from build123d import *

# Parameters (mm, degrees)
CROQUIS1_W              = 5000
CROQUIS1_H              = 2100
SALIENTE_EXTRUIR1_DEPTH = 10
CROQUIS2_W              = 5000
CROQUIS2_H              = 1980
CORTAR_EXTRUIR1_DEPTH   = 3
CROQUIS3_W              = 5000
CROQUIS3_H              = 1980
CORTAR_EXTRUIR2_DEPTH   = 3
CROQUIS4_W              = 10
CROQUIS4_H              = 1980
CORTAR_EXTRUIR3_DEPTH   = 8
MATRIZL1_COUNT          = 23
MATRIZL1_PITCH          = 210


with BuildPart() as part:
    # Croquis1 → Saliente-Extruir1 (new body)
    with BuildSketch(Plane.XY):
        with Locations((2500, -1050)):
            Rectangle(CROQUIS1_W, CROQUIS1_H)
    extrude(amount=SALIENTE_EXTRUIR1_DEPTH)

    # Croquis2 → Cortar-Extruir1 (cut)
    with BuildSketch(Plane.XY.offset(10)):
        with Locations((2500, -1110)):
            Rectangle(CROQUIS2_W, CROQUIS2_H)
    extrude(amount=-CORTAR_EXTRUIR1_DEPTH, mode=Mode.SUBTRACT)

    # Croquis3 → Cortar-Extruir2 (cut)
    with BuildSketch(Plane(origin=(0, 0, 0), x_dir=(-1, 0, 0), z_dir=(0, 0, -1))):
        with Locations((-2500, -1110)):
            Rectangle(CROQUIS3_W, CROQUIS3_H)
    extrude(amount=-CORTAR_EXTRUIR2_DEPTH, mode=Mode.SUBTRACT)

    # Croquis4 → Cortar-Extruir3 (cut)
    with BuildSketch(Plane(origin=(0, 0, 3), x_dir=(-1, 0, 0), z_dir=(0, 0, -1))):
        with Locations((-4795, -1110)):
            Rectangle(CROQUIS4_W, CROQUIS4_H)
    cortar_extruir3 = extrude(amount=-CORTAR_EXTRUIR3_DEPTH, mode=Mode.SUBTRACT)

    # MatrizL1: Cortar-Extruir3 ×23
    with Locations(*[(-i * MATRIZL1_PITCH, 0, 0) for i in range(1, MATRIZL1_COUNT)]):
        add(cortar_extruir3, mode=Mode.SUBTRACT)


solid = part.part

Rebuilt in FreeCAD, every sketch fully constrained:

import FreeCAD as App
import Part
import Sketcher
Q = App.Units.Quantity


def add_polygon(sketch, points):
    """Adds a closed chain of lines whose ends are joined by coincident constraints."""
    first, n = sketch.GeometryCount, len(points)
    for a, b in zip(points, points[1:] + points[:1]):
        sketch.addGeometry(Part.LineSegment(App.Vector(*a, 0), App.Vector(*b, 0)), False)
    for i in range(n):
        sketch.addConstraint(Sketcher.Constraint("Coincident", first + i, 2, first + (i + 1) % n, 1))

doc = App.newDocument("Part")
body = doc.addObject("PartDesign::Body", "Body")

sketch1 = doc.addObject("Sketcher::SketchObject", "Sketch")
body.addObject(sketch1)
sketch1.AttachmentSupport = (doc.XY_Plane, [""])
sketch1.MapMode = "FlatFace"
add_polygon(sketch1, [(0, 0), (0, -2100), (5000, -2100), (5000, 0)])
sketch1.addConstraint(Sketcher.Constraint("Vertical", 0))
sketch1.addConstraint(Sketcher.Constraint("Horizontal", 1))
sketch1.addConstraint(Sketcher.Constraint("Vertical", 2))
sketch1.addConstraint(Sketcher.Constraint("Horizontal", 3))
sketch1.addConstraint(Sketcher.Constraint("Coincident", 3, 2, -1, 1))
sketch1.addConstraint(Sketcher.Constraint("DistanceX", 1, 1, 1, 2, Q("5000 mm")))
sketch1.addConstraint(Sketcher.Constraint("DistanceY", 0, 2, 0, 1, Q("2100 mm")))
pad1 = doc.addObject("PartDesign::Pad", "Pad")
body.addObject(pad1)
pad1.Profile = sketch1
pad1.Length = 10

sketch2 = doc.addObject("Sketcher::SketchObject", "Sketch001")
body.addObject(sketch2)
sketch2.AttachmentSupport = (doc.XY_Plane, [""])
sketch2.MapMode = "FlatFace"
sketch2.AttachmentOffset = App.Placement(App.Vector(0, 0, 10), App.Rotation())
add_polygon(sketch2, [(0, -120), (0, -2100), (5000, -2100), (5000, -120)])
sketch2.addConstraint(Sketcher.Constraint("Vertical", 0))
sketch2.addConstraint(Sketcher.Constraint("Horizontal", 1))
sketch2.addConstraint(Sketcher.Constraint("Vertical", 2))
sketch2.addConstraint(Sketcher.Constraint("Horizontal", 3))
sketch2.addConstraint(Sketcher.Constraint("PointOnObject", 0, 2, -2))
sketch2.addConstraint(Sketcher.Constraint("DistanceX", 1, 1, 1, 2, Q("5000 mm")))
sketch2.addConstraint(Sketcher.Constraint("DistanceY", 0, 2, 0, 1, Q("1980 mm")))
sketch2.addConstraint(Sketcher.Constraint("DistanceY", 0, 2, -1, 1, Q("2100 mm")))
pocket1 = doc.addObject("PartDesign::Pocket", "Pocket")
body.addObject(pocket1)
pocket1.Profile = sketch2
pocket1.Length = 3

sketch3 = doc.addObject("Sketcher::SketchObject", "Sketch002")
body.addObject(sketch3)
sketch3.AttachmentSupport = (doc.XY_Plane, [""])
sketch3.MapMode = "FlatFace"
add_polygon(sketch3, [(5000, -120), (5000, -2100), (0, -2100), (0, -120)])
sketch3.addConstraint(Sketcher.Constraint("Vertical", 0))
sketch3.addConstraint(Sketcher.Constraint("Horizontal", 1))
sketch3.addConstraint(Sketcher.Constraint("Vertical", 2))
sketch3.addConstraint(Sketcher.Constraint("Horizontal", 3))
sketch3.addConstraint(Sketcher.Constraint("PointOnObject", 1, 2, -2))
sketch3.addConstraint(Sketcher.Constraint("DistanceX", 1, 2, 1, 1, Q("5000 mm")))
sketch3.addConstraint(Sketcher.Constraint("DistanceY", 0, 2, 0, 1, Q("1980 mm")))
sketch3.addConstraint(Sketcher.Constraint("DistanceY", 0, 2, -1, 1, Q("2100 mm")))
pocket2 = doc.addObject("PartDesign::Pocket", "Pocket001")
body.addObject(pocket2)
pocket2.Profile = sketch3
pocket2.Length = 3
pocket2.Reversed = True

sketch4 = doc.addObject("Sketcher::SketchObject", "Sketch003")
body.addObject(sketch4)
sketch4.AttachmentSupport = (doc.XY_Plane, [""])
sketch4.MapMode = "FlatFace"
sketch4.AttachmentOffset = App.Placement(App.Vector(0, 0, 3), App.Rotation())
add_polygon(sketch4, [(4800, -120), (4800, -2100), (4790, -2100), (4790, -120)])
sketch4.addConstraint(Sketcher.Constraint("Vertical", 0))
sketch4.addConstraint(Sketcher.Constraint("Horizontal", 1))
sketch4.addConstraint(Sketcher.Constraint("Vertical", 2))
sketch4.addConstraint(Sketcher.Constraint("Horizontal", 3))
sketch4.addConstraint(Sketcher.Constraint("DistanceX", 1, 2, 1, 1, Q("10 mm")))
sketch4.addConstraint(Sketcher.Constraint("DistanceY", 0, 2, 0, 1, Q("1980 mm")))
sketch4.addConstraint(Sketcher.Constraint("DistanceX", -1, 1, 0, 2, Q("4800 mm")))
sketch4.addConstraint(Sketcher.Constraint("DistanceY", 0, 2, -1, 1, Q("2100 mm")))
pocket3 = doc.addObject("PartDesign::Pocket", "Pocket002")
body.addObject(pocket3)
pocket3.Profile = sketch4
pocket3.Length = 8
pocket3.Reversed = True
doc.recompute()

linearpattern = doc.addObject("PartDesign::LinearPattern", "LinearPattern")
body.addObject(linearpattern)
linearpattern.Originals = [pocket3]
linearpattern.Direction = (doc.X_Axis, [""])
linearpattern.Mode = "offset"
linearpattern.Offset = 210
linearpattern.Occurrences = 23
linearpattern.Reversed = True
body.Tip = linearpattern

doc.recompute()
